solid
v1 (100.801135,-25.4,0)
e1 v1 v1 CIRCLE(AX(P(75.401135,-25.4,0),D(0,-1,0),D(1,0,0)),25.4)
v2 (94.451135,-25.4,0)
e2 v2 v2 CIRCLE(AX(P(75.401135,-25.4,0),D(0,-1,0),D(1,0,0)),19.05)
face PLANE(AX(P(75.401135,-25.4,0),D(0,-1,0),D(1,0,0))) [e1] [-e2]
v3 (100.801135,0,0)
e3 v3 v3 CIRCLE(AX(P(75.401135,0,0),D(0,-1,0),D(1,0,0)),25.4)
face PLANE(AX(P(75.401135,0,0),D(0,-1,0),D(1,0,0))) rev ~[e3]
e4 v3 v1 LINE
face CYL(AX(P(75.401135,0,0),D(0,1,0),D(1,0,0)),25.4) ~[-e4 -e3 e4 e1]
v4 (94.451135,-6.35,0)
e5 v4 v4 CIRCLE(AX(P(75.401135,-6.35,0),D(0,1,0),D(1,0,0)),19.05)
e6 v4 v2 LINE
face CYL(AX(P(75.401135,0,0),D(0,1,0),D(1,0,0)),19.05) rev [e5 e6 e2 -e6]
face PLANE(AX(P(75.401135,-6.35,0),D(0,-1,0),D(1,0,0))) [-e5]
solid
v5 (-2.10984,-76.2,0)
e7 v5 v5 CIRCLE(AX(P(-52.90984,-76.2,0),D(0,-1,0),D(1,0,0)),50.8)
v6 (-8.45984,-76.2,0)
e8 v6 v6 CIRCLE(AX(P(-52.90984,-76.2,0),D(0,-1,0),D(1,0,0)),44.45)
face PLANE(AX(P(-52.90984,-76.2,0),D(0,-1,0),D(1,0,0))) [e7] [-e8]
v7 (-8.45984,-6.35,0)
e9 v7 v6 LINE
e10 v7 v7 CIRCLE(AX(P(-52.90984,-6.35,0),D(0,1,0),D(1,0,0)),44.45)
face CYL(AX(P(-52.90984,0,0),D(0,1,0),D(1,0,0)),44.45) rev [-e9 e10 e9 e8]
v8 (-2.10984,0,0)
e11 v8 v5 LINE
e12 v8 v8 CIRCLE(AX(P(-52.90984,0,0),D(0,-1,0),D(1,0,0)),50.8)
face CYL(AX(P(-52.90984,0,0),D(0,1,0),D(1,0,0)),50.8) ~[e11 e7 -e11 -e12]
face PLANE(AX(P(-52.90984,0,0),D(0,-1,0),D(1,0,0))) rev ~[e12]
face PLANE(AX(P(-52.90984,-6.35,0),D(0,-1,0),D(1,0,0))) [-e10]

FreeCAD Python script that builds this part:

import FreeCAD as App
import Part
import Sketcher

V = App.Vector
Q = App.Units.Quantity


def faces_at(feature, points):
    """Names of the faces that lie closest to the given points."""
    faces = feature.Shape.Faces
    near = lambda p: min(range(len(faces)), key=lambda i: faces[i].distToShape(Part.Vertex(*p))[0])
    return sorted({f"Face{near(p) + 1}" for p in points})

doc = App.newDocument("Part")
body = doc.addObject("PartDesign::Body", "Body")

# Sketch on XZ plane
sketch1 = body.newObject("Sketcher::SketchObject", "Sketch")
sketch1.AttachmentSupport = (doc.getObject("XZ_Plane"), [""])
sketch1.MapMode = "FlatFace"
sketch1.addGeometry(Part.Circle(V(75, 0, 0), V(0, 0, 1), 25), False)
sketch1.addConstraint([
    Sketcher.Constraint("PointOnObject", 0, 3, -1),
    Sketcher.Constraint("Diameter", 0, Q("2 in")),
    Sketcher.Constraint("DistanceX", -1, 1, 0, 3, 75.401135),
])
pad1 = body.newObject("PartDesign::Pad", "Pad")
pad1.Profile = sketch1
pad1.Length = Q("1 in")
doc.recompute()

thickness = body.newObject("PartDesign::Thickness", "Thickness")
thickness.Base = (pad1, faces_at(pad1, [(75.401, -25.4, 0)]))
thickness.Value = Q("0.25 in")
thickness.Reversed = True
thickness.Join = "Arc"
body2 = doc.addObject("PartDesign::Body", "Body001")

# Sketch on XZ plane
sketch2 = body2.newObject("Sketcher::SketchObject", "Sketch001")
sketch2.AttachmentSupport = (doc.getObject("XZ_Plane001"), [""])
sketch2.MapMode = "FlatFace"
sketch2.addGeometry(Part.Circle(V(-53, 0, 0), V(0, 0, 1), 51), False)
sketch2.addConstraint([
    Sketcher.Constraint("PointOnObject", 0, 3, -1),
    Sketcher.Constraint("Diameter", 0, Q("4 in")),
    Sketcher.Constraint("DistanceX", 0, 3, -1, 1, 52.90984),
])
pad2 = body2.newObject("PartDesign::Pad", "Pad001")
pad2.Profile = sketch2
pad2.Length = Q("3 in")
doc.recompute()

thickness2 = body2.newObject("PartDesign::Thickness", "Thickness001")
thickness2.Base = (pad2, faces_at(pad2, [(-52.91, -76.2, 0)]))
thickness2.Value = Q("0.25 in")
thickness2.Reversed = True
thickness2.Join = "Arc"

doc.recompute()
